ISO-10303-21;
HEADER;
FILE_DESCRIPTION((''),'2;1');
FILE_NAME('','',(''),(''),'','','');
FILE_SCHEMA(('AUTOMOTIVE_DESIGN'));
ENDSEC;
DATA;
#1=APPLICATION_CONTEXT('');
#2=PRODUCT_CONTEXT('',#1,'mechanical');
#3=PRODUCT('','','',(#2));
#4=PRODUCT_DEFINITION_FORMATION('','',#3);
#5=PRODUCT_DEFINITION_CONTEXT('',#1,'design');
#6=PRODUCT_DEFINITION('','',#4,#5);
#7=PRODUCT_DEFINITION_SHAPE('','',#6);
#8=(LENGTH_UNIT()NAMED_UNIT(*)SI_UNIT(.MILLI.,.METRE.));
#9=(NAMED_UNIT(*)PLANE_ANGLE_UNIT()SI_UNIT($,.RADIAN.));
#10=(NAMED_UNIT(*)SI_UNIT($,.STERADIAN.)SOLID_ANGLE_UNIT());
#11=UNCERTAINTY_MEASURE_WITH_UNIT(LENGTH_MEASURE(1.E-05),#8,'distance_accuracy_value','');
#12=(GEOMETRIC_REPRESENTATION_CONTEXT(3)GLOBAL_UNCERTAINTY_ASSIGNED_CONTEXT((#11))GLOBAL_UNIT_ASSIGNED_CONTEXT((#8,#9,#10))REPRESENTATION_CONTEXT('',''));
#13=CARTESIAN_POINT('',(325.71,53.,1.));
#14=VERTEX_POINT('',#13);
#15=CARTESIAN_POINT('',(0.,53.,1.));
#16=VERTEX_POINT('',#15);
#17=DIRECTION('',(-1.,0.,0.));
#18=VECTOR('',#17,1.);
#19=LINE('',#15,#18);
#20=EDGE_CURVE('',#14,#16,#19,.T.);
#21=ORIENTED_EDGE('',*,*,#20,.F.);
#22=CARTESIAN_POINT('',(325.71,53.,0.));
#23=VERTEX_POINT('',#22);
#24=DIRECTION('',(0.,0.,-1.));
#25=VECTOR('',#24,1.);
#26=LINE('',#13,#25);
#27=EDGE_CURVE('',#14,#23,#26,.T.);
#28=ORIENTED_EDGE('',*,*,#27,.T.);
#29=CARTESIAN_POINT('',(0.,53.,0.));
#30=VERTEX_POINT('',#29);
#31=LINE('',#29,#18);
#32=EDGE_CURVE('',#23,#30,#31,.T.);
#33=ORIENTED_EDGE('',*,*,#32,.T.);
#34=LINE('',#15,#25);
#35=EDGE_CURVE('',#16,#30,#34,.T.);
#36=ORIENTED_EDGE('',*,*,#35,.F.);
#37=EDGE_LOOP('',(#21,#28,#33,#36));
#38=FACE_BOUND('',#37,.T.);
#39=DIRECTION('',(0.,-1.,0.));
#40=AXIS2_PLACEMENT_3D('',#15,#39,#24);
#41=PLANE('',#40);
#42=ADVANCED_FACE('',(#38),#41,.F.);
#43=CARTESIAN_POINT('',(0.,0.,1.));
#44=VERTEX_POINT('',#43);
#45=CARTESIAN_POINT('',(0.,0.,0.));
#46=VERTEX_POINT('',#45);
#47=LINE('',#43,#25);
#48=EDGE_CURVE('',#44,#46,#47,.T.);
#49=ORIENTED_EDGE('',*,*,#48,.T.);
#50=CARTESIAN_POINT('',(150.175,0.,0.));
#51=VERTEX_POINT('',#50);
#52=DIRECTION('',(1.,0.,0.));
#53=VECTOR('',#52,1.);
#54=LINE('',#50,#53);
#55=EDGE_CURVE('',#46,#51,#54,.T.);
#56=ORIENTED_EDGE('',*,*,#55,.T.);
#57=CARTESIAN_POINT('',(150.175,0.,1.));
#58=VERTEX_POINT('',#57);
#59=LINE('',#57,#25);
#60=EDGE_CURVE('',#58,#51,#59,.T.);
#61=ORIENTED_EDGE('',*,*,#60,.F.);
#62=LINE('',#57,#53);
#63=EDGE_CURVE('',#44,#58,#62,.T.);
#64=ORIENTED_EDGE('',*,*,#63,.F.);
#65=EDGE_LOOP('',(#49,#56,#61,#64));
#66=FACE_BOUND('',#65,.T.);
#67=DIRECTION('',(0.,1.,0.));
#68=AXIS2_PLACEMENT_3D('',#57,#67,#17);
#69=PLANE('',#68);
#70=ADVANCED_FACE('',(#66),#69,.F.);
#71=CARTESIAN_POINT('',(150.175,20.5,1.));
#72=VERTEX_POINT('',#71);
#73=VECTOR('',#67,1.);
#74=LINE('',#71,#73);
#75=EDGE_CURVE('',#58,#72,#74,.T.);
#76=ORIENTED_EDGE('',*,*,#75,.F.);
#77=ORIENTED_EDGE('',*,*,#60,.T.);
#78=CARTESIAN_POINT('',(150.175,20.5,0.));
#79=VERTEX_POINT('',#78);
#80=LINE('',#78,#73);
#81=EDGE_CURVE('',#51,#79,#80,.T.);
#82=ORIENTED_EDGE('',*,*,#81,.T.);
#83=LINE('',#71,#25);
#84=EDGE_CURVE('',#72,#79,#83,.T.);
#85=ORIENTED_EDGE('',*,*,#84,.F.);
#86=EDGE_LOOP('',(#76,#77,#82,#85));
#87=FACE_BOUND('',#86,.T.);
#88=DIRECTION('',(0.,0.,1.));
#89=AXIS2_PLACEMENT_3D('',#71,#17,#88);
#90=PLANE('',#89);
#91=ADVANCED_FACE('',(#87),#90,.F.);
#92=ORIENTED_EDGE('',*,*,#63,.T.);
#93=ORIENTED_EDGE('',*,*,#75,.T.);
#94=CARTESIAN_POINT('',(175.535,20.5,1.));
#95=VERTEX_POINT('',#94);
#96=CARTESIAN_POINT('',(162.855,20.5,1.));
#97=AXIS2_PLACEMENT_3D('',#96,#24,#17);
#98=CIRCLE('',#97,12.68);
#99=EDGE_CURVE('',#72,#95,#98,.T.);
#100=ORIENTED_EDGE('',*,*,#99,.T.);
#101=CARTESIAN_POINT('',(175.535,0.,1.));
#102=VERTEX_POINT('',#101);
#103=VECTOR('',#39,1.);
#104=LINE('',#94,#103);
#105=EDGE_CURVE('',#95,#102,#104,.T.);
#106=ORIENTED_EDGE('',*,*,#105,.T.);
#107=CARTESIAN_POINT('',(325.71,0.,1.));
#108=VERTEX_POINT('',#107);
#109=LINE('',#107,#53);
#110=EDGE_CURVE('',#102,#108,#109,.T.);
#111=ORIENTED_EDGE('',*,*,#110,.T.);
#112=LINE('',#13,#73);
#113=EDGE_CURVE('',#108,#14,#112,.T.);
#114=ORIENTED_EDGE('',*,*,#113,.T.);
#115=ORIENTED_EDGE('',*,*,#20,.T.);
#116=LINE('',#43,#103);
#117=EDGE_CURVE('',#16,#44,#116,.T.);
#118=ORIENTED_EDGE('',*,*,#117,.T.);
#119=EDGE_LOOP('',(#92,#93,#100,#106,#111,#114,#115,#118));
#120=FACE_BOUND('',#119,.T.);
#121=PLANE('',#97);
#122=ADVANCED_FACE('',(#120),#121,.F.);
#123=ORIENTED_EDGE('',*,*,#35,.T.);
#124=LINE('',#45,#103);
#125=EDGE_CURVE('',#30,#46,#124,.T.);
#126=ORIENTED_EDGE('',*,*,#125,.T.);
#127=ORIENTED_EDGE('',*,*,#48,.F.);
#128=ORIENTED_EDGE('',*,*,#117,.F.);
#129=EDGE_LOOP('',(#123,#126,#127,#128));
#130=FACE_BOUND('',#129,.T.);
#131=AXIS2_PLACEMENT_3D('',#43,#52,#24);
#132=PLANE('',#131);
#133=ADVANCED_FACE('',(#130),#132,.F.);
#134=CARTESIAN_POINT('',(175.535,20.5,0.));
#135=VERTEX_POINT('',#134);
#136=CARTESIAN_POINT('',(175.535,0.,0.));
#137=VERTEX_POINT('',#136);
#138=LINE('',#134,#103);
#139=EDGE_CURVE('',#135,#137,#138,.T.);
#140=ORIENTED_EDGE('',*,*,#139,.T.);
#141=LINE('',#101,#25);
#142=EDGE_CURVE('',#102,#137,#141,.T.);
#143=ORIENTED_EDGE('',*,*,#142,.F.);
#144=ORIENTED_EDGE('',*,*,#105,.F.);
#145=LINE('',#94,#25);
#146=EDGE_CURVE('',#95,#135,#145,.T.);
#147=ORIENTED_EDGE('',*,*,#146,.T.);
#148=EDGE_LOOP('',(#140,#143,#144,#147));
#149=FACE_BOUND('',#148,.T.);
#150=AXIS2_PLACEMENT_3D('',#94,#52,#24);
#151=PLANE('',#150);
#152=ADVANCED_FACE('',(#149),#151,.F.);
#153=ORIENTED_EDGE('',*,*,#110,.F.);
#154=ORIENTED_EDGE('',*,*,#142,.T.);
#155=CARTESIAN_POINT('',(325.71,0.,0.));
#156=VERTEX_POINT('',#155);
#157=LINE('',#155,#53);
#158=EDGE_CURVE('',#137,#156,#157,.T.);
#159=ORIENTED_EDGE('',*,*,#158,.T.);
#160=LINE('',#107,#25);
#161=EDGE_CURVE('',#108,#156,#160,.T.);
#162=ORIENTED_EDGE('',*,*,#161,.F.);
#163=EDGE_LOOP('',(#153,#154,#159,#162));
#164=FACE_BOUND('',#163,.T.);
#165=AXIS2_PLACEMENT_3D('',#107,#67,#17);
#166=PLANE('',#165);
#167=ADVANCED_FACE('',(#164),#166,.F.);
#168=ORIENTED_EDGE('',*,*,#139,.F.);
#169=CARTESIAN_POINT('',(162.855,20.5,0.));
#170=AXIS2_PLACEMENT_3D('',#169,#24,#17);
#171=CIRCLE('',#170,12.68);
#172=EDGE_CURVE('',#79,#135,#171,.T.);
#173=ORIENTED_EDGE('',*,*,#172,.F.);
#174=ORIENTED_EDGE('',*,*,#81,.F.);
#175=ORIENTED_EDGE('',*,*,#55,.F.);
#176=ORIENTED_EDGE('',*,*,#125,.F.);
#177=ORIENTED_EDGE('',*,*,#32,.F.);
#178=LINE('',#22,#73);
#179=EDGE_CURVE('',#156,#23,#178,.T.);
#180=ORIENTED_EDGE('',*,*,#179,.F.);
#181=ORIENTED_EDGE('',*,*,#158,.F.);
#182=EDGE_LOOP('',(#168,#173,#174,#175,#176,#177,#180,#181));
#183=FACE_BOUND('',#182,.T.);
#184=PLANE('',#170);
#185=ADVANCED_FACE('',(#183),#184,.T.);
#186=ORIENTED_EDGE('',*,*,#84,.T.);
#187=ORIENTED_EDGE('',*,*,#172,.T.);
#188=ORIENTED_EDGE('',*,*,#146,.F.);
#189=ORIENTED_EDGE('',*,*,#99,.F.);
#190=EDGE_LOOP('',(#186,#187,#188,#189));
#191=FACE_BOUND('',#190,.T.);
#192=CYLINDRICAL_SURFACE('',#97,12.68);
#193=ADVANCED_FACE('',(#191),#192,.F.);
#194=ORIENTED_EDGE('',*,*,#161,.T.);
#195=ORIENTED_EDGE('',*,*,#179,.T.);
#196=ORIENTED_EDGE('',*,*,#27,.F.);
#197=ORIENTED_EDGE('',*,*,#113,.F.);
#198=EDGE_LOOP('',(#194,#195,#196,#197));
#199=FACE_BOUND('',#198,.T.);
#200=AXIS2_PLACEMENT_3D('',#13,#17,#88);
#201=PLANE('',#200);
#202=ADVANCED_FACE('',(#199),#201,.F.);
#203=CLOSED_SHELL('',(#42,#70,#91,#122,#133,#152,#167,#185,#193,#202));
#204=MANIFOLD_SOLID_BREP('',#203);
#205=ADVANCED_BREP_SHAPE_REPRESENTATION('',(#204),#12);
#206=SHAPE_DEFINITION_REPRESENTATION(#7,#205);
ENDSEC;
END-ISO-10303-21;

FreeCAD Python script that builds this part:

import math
import FreeCAD as App
import Part
import Sketcher

V = App.Vector
Q = App.Units.Quantity

doc = App.newDocument("Part")
body = doc.addObject("PartDesign::Body", "Body")

# Sketch on XY plane
sketch1 = doc.addObject("Sketcher::SketchObject", "Sketch")
body.addObject(sketch1)
sketch1.AttachmentSupport = (doc.XY_Plane, [""])
sketch1.MapMode = "FlatFace"
sketch1.addGeometry(Part.LineSegment(V(0, 53, 0), V(0, 0, 0)), False)
sketch1.addGeometry(Part.LineSegment(V(0, 0, 0), V(150, 0, 0)), False)
sketch1.addGeometry(Part.LineSegment(V(150, 0, 0), V(150, 20, 0)), False)
sketch1.addGeometry(Part.ArcOfCircle(Part.Circle(V(163, 20, 0), V(0, 0, 1), 13), math.radians(0), math.radians(180)), False)
sketch1.addGeometry(Part.LineSegment(V(176, 20, 0), V(176, 0, 0)), False)
sketch1.addGeometry(Part.LineSegment(V(176, 0, 0), V(326, 0, 0)), False)
sketch1.addGeometry(Part.LineSegment(V(326, 0, 0), V(326, 53, 0)), False)
sketch1.addGeometry(Part.LineSegment(V(326, 53, 0), V(0, 53, 0)), False)
sketch1.addConstraint(Sketcher.Constraint("Coincident", 0, 2, 1, 1))
sketch1.addConstraint(Sketcher.Constraint("Coincident", 1, 2, 2, 1))
sketch1.addConstraint(Sketcher.Constraint("Tangent", 2, 2, 3, 2))
sketch1.addConstraint(Sketcher.Constraint("Tangent", 3, 1, 4, 1))
sketch1.addConstraint(Sketcher.Constraint("Coincident", 4, 2, 5, 1))
sketch1.addConstraint(Sketcher.Constraint("Coincident", 5, 2, 6, 1))
sketch1.addConstraint(Sketcher.Constraint("Coincident", 6, 2, 7, 1))
sketch1.addConstraint(Sketcher.Constraint("Coincident", 7, 2, 0, 1))
sketch1.addConstraint(Sketcher.Constraint("Vertical", 0))
sketch1.addConstraint(Sketcher.Constraint("Horizontal", 1))
sketch1.addConstraint(Sketcher.Constraint("Vertical", 2))
sketch1.addConstraint(Sketcher.Constraint("Vertical", 4))
sketch1.addConstraint(Sketcher.Constraint("Horizontal", 5))
sketch1.addConstraint(Sketcher.Constraint("Vertical", 6))
sketch1.addConstraint(Sketcher.Constraint("Horizontal", 7))
sketch1.addConstraint(Sketcher.Constraint("Coincident", 0, 2, -1, 1))
sketch1.addConstraint(Sketcher.Constraint("PointOnObject", 4, 2, -1))
sketch1.addConstraint(Sketcher.Constraint("Equal", 1, 5))
sketch1.addConstraint(Sketcher.Constraint("DistanceY", 0, 2, 0, 1, Q("53 mm")))
sketch1.addConstraint(Sketcher.Constraint("Radius", 3, Q("12.68 mm")))
sketch1.addConstraint(Sketcher.Constraint("DistanceY", 2, 1, 2, 2, Q("20.5 mm")))
sketch1.addConstraint(Sketcher.Constraint("DistanceX", 7, 2, 7, 1, Q("325.71 mm")))
pad1 = doc.addObject("PartDesign::Pad", "Pad")
body.addObject(pad1)
pad1.Profile = sketch1
pad1.Length = 1

doc.recompute()
